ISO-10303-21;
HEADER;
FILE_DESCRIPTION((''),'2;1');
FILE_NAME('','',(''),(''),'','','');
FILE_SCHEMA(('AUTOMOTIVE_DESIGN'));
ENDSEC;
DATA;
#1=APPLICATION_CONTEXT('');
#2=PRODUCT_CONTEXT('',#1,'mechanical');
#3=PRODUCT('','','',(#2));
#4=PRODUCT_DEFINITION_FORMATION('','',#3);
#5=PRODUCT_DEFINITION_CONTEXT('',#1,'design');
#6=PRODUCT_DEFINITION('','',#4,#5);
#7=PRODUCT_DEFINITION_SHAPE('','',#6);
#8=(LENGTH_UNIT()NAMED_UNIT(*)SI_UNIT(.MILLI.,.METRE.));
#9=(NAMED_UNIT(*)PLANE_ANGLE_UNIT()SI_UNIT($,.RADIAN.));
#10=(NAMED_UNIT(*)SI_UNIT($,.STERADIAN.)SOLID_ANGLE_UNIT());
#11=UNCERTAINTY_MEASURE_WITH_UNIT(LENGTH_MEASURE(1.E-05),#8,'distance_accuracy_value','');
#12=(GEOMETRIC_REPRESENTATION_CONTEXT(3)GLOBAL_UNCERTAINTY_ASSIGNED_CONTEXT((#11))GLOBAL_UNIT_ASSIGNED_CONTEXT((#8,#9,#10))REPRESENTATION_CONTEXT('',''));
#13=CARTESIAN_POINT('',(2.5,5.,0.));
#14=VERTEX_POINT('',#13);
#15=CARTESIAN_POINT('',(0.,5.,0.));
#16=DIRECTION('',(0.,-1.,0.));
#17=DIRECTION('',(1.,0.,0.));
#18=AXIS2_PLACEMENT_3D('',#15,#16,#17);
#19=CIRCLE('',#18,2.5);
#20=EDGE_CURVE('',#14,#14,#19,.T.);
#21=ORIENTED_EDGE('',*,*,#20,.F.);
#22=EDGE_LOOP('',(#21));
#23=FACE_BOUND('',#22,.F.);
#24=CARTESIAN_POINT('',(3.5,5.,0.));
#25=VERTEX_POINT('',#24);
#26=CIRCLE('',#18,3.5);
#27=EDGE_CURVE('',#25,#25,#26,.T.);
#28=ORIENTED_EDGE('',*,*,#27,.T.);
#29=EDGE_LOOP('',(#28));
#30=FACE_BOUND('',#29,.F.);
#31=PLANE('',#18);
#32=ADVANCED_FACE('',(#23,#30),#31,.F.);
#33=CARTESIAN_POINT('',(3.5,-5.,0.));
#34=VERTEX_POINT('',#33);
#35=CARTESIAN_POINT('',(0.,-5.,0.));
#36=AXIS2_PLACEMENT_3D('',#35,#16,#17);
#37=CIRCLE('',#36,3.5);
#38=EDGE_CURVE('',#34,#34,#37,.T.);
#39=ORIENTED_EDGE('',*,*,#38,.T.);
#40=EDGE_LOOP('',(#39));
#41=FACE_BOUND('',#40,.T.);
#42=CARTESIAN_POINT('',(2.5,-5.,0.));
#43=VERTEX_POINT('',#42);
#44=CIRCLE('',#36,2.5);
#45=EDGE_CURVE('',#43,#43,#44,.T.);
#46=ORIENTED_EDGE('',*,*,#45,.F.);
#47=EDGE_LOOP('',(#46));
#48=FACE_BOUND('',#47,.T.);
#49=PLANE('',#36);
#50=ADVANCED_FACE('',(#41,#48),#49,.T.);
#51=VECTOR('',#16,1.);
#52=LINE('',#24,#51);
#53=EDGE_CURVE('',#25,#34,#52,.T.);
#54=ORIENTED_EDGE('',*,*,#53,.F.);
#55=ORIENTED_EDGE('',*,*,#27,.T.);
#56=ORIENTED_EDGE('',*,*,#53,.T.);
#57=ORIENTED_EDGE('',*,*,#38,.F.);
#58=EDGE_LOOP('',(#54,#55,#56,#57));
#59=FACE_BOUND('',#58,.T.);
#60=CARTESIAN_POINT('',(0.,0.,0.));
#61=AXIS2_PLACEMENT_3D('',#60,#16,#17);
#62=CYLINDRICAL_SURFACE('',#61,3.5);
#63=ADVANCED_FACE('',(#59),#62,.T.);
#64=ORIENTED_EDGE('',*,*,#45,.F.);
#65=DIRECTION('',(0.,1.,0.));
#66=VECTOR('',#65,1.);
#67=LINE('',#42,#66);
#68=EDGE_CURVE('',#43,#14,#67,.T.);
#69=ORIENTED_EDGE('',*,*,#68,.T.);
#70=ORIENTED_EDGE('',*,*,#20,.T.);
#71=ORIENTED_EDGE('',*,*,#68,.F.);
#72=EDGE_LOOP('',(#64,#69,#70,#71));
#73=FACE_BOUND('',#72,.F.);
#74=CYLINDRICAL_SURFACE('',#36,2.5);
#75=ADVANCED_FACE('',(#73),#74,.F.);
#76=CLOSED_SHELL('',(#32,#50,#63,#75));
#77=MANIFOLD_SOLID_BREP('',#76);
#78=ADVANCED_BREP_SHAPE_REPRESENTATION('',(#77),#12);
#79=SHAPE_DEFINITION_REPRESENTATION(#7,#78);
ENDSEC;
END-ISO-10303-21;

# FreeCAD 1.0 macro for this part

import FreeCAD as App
import Part
import Sketcher

V = App.Vector

doc = App.newDocument("Part")
body = doc.addObject("PartDesign::Body", "Body")

# Sketch on XZ plane
sketch1 = doc.addObject("Sketcher::SketchObject", "Sketch")
body.addObject(sketch1)
sketch1.AttachmentSupport = (doc.XZ_Plane, [""])
sketch1.MapMode = "FlatFace"
sketch1.addGeometry(Part.Circle(V(0, 0, 0), V(0, 0, 1), 3.5), False)
sketch1.addConstraint(Sketcher.Constraint("Coincident", 0, 3, -1, 1))
sketch1.addConstraint(Sketcher.Constraint("Diameter", 0, 7.0))
pad1 = doc.addObject("PartDesign::Pad", "Pad")
body.addObject(pad1)
pad1.Profile = sketch1
pad1.Length = 10
pad1.Midplane = True

# Sketch on XZ plane
sketch2 = doc.addObject("Sketcher::SketchObject", "Sketch001")
body.addObject(sketch2)
sketch2.AttachmentSupport = (doc.XZ_Plane, [""])
sketch2.MapMode = "FlatFace"
sketch2.AttachmentOffset = App.Placement(V(0, 0, 5), App.Rotation())
sketch2.addGeometry(Part.Circle(V(0, 0, 0), V(0, 0, 1), 2.5), False)
sketch2.addConstraint(Sketcher.Constraint("Coincident", 0, 3, -1, 1))
sketch2.addConstraint(Sketcher.Constraint("Diameter", 0, 5.0))
pocket1 = doc.addObject("PartDesign::Pocket", "Pocket")
body.addObject(pocket1)
pocket1.Profile = sketch2
pocket1.Type = "ThroughAll"

doc.recompute()
